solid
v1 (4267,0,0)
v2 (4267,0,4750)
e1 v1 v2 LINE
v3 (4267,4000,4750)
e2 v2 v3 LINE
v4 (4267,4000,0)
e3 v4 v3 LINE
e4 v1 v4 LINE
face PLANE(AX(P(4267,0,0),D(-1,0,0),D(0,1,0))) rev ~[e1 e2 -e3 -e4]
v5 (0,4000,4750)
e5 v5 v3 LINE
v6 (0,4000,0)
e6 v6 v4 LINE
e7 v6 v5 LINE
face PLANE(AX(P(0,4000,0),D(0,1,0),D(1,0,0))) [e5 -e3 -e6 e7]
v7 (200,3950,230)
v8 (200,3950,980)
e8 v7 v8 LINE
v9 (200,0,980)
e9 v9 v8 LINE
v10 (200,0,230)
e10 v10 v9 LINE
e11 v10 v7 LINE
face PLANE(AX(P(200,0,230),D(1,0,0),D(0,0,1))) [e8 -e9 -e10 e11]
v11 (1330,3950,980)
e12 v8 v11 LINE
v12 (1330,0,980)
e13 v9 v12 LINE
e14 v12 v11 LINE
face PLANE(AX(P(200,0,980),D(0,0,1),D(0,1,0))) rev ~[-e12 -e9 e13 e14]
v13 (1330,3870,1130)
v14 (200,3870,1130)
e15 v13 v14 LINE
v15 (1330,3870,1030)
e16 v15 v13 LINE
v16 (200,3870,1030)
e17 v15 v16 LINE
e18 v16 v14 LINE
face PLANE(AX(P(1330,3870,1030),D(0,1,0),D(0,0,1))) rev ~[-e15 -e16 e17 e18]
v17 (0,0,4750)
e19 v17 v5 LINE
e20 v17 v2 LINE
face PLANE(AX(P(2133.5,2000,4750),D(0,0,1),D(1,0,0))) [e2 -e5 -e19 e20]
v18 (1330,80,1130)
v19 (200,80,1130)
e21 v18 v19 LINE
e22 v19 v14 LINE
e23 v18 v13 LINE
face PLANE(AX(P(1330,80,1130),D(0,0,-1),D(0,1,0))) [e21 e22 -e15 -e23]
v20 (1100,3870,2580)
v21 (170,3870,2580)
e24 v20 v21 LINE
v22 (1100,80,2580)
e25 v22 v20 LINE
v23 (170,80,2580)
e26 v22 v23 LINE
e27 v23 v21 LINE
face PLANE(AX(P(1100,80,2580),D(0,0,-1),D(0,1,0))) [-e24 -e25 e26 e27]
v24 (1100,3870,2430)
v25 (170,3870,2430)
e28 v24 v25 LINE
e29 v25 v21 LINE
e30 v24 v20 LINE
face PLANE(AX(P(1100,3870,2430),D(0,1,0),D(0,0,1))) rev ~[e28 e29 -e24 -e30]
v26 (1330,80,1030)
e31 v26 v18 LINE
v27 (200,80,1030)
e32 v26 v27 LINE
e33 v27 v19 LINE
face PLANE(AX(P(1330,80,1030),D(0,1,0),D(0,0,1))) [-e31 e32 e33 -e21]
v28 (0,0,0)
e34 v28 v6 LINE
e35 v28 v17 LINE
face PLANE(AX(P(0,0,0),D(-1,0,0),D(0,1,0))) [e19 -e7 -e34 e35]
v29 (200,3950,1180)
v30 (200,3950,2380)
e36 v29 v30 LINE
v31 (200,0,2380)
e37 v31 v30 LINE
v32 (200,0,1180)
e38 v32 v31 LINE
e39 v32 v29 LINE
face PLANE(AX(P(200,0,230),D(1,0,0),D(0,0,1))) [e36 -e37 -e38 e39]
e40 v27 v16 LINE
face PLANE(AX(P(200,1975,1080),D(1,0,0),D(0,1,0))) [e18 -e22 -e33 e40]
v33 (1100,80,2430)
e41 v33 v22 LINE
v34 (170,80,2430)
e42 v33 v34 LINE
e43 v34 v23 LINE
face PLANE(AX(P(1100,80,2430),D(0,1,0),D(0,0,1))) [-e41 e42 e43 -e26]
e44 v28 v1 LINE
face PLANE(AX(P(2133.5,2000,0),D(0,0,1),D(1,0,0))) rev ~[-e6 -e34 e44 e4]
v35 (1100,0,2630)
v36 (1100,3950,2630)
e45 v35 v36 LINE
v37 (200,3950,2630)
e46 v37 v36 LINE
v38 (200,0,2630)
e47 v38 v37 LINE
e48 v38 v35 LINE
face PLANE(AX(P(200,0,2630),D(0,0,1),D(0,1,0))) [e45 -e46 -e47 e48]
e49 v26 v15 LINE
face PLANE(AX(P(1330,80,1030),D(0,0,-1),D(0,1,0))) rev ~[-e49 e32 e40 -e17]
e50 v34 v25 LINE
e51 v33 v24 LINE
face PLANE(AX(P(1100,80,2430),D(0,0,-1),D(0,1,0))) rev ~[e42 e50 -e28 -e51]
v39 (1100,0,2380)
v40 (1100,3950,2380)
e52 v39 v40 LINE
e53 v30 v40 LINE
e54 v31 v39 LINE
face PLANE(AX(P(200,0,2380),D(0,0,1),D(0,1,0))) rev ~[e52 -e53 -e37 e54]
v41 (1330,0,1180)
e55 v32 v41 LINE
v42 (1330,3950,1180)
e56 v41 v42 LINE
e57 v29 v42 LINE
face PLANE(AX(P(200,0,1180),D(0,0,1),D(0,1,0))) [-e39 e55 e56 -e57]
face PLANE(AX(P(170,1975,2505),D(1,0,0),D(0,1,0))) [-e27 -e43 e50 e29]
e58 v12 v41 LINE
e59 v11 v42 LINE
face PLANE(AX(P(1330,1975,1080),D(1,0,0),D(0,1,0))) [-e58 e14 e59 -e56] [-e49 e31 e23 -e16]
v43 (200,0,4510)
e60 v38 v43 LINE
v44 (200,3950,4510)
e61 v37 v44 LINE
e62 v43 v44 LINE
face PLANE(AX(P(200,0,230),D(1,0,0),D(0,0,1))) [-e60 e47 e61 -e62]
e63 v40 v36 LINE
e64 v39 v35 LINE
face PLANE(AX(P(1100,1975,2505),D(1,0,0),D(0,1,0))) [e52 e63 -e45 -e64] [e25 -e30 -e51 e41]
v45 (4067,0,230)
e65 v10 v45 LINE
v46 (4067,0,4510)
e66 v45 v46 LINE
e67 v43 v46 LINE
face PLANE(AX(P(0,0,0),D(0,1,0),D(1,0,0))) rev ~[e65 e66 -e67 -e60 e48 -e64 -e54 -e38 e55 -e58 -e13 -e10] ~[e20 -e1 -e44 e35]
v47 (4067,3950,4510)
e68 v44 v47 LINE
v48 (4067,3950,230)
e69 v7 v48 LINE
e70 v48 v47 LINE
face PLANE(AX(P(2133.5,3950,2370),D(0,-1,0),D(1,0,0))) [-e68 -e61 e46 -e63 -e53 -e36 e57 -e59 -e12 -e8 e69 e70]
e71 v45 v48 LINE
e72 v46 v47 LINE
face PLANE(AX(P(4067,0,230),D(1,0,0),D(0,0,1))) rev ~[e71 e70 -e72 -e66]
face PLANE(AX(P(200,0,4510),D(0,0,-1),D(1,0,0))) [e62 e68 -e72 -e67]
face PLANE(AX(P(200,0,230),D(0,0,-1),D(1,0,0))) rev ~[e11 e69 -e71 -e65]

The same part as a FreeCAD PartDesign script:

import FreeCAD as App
import Part
import Sketcher
from FreeCAD import Vector


def add_polygon(sketch, points):
    """Adds a closed chain of lines whose ends are joined by coincident constraints."""
    first, n = sketch.GeometryCount, len(points)
    for a, b in zip(points, points[1:] + points[:1]):
        sketch.addGeometry(Part.LineSegment(App.Vector(*a, 0), App.Vector(*b, 0)), False)
    for i in range(n):
        sketch.addConstraint(Sketcher.Constraint("Coincident", first + i, 2, first + (i + 1) % n, 1))

doc = App.newDocument("Part")
body = doc.addObject("PartDesign::Body", "Body")

# Sketch on XY plane
sketch1 = body.newObject("Sketcher::SketchObject", "Sketch")
sketch1.AttachmentSupport = (doc.getObject("XY_Plane"), [""])
sketch1.MapMode = "FlatFace"
add_polygon(sketch1, [(0, 4000), (0, 0), (4267, 0), (4267, 4000)])  # lines 0-3
sketch1.addConstraint(Sketcher.Constraint("Vertical", 0))
sketch1.addConstraint(Sketcher.Constraint("Horizontal", 1))
sketch1.addConstraint(Sketcher.Constraint("Vertical", 2))
sketch1.addConstraint(Sketcher.Constraint("Horizontal", 3))
sketch1.addConstraint(Sketcher.Constraint("Coincident", 0, 2, -1, 1))
sketch1.addConstraint(Sketcher.Constraint("DistanceX", 1, 1, 1, 2, 4267.0))
sketch1.addConstraint(Sketcher.Constraint("DistanceY", 0, 2, 0, 1, 4000.0))
pad1 = body.newObject("PartDesign::Pad", "Pad")
pad1.Profile = sketch1
pad1.Length = 4750

# Sketch on XZ plane
sketch2 = body.newObject("Sketcher::SketchObject", "Sketch001")
sketch2.AttachmentSupport = (doc.getObject("XZ_Plane"), [""])
sketch2.MapMode = "FlatFace"
add_polygon(sketch2, [(200, 4510), (200, 230), (4067, 230), (4067, 4510)])  # lines 0-3
sketch2.addConstraint(Sketcher.Constraint("Vertical", 0))
sketch2.addConstraint(Sketcher.Constraint("Horizontal", 1))
sketch2.addConstraint(Sketcher.Constraint("Vertical", 2))
sketch2.addConstraint(Sketcher.Constraint("Horizontal", 3))
sketch2.addConstraint(Sketcher.Constraint("DistanceX", 1, 1, 1, 2, 3867.0))
sketch2.addConstraint(Sketcher.Constraint("DistanceY", 0, 2, 0, 1, 4280.0))
sketch2.addConstraint(Sketcher.Constraint("DistanceX", -1, 1, 0, 2, 200.0))
sketch2.addConstraint(Sketcher.Constraint("DistanceY", -1, 1, 0, 2, 230.0))
pocket1 = body.newObject("PartDesign::Pocket", "Pocket")
pocket1.Profile = sketch2
pocket1.Length = 3950

# Sketch on YZ plane
sketch3 = body.newObject("Sketcher::SketchObject", "Sketch002")
sketch3.AttachmentSupport = (doc.getObject("YZ_Plane"), [""])
sketch3.MapMode = "FlatFace"
sketch3.AttachmentOffset = App.Placement(Vector(0, 0, 200), App.Rotation())
add_polygon(sketch3, [(0, 1180), (0, 980), (3950, 980), (3950, 1180)])  # lines 0-3
sketch3.addConstraint(Sketcher.Constraint("Vertical", 0))
sketch3.addConstraint(Sketcher.Constraint("Horizontal", 1))
sketch3.addConstraint(Sketcher.Constraint("Vertical", 2))
sketch3.addConstraint(Sketcher.Constraint("Horizontal", 3))
sketch3.addConstraint(Sketcher.Constraint("PointOnObject", 0, 2, -2))
sketch3.addConstraint(Sketcher.Constraint("DistanceX", 1, 1, 1, 2, 3950.0))
sketch3.addConstraint(Sketcher.Constraint("DistanceY", 0, 2, 0, 1, 200.0))
sketch3.addConstraint(Sketcher.Constraint("DistanceY", -1, 1, 0, 2, 980.0))
pad2 = body.newObject("PartDesign::Pad", "Pad001")
pad2.Profile = sketch3
pad2.Length = 1130

# Sketch on YZ plane
sketch4 = body.newObject("Sketcher::SketchObject", "Sketch003")
sketch4.AttachmentSupport = (doc.getObject("YZ_Plane"), [""])
sketch4.MapMode = "FlatFace"
sketch4.AttachmentOffset = App.Placement(Vector(0, 0, 200), App.Rotation())
add_polygon(sketch4, [(0, 2630), (0, 2380), (3950, 2380), (3950, 2630)])  # lines 0-3
sketch4.addConstraint(Sketcher.Constraint("Vertical", 0))
sketch4.addConstraint(Sketcher.Constraint("Horizontal", 1))
sketch4.addConstraint(Sketcher.Constraint("Vertical", 2))
sketch4.addConstraint(Sketcher.Constraint("Horizontal", 3))
sketch4.addConstraint(Sketcher.Constraint("PointOnObject", 0, 2, -2))
sketch4.addConstraint(Sketcher.Constraint("DistanceX", 1, 1, 1, 2, 3950.0))
sketch4.addConstraint(Sketcher.Constraint("DistanceY", 0, 2, 0, 1, 250.0))
sketch4.addConstraint(Sketcher.Constraint("DistanceY", -1, 1, 0, 2, 2380.0))
pad3 = body.newObject("PartDesign::Pad", "Pad002")
pad3.Profile = sketch4
pad3.Length = 900

# Sketch on YZ plane
sketch5 = body.newObject("Sketcher::SketchObject", "Sketch004")
sketch5.AttachmentSupport = (doc.getObject("YZ_Plane"), [""])
sketch5.MapMode = "FlatFace"
sketch5.AttachmentOffset = App.Placement(Vector(0, 0, 1100), App.Rotation())
add_polygon(sketch5, [(80, 2580), (80, 2430), (3870, 2430), (3870, 2580)])  # lines 0-3
sketch5.addConstraint(Sketcher.Constraint("Vertical", 0))
sketch5.addConstraint(Sketcher.Constraint("Horizontal", 1))
sketch5.addConstraint(Sketcher.Constraint("Vertical", 2))
sketch5.addConstraint(Sketcher.Constraint("Horizontal", 3))
sketch5.addConstraint(Sketcher.Constraint("DistanceX", 1, 1, 1, 2, 3790.0))
sketch5.addConstraint(Sketcher.Constraint("DistanceY", 0, 2, 0, 1, 150.0))
sketch5.addConstraint(Sketcher.Constraint("DistanceX", -1, 1, 0, 2, 80.0))
sketch5.addConstraint(Sketcher.Constraint("DistanceY", -1, 1, 0, 2, 2430.0))
pocket2 = body.newObject("PartDesign::Pocket", "Pocket001")
pocket2.Profile = sketch5
pocket2.Length = 930

# Sketch on YZ plane
sketch6 = body.newObject("Sketcher::SketchObject", "Sketch005")
sketch6.AttachmentSupport = (doc.getObject("YZ_Plane"), [""])
sketch6.MapMode = "FlatFace"
sketch6.AttachmentOffset = App.Placement(Vector(0, 0, 1330), App.Rotation())
add_polygon(sketch6, [(80, 1130), (80, 1030), (3870, 1030), (3870, 1130)])  # lines 0-3
sketch6.addConstraint(Sketcher.Constraint("Vertical", 0))
sketch6.addConstraint(Sketcher.Constraint("Horizontal", 1))
sketch6.addConstraint(Sketcher.Constraint("Vertical", 2))
sketch6.addConstraint(Sketcher.Constraint("Horizontal", 3))
sketch6.addConstraint(Sketcher.Constraint("DistanceX", 1, 1, 1, 2, 3790.0))
sketch6.addConstraint(Sketcher.Constraint("DistanceY", 0, 2, 0, 1, 100.0))
sketch6.addConstraint(Sketcher.Constraint("DistanceX", -1, 1, 0, 2, 80.0))
sketch6.addConstraint(Sketcher.Constraint("DistanceY", -1, 1, 0, 2, 1030.0))
pocket3 = body.newObject("PartDesign::Pocket", "Pocket002")
pocket3.Profile = sketch6
pocket3.Length = 1130

doc.recompute()
